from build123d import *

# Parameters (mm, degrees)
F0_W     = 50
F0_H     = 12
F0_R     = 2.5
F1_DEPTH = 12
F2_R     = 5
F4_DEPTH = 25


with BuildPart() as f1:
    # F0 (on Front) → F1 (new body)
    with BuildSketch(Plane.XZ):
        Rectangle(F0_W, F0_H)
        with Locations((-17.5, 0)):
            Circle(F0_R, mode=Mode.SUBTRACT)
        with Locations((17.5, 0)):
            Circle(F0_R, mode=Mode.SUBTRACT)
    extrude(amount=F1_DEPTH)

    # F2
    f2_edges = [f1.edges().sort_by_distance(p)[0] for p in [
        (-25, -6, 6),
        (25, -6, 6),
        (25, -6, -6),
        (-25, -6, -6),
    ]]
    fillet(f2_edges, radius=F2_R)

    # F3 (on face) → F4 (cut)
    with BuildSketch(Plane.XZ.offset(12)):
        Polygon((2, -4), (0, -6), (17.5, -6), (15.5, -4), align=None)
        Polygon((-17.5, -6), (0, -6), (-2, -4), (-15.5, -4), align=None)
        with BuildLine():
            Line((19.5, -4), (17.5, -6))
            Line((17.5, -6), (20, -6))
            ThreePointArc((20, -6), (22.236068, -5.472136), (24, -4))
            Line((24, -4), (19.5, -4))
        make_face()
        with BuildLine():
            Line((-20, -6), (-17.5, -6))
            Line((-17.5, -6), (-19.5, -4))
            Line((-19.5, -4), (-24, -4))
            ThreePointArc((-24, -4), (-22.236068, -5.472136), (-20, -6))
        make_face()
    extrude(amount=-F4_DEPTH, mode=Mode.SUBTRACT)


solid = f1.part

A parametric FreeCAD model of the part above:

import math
import FreeCAD as App
import Part
import Sketcher
from FreeCAD import Vector
Q = App.Units.Quantity


def edges_at(feature, points):
    """Names of the edges that pass closest to the given points."""
    edges = feature.Shape.Edges
    near = lambda p: min(range(len(edges)), key=lambda i: edges[i].distToShape(Part.Vertex(*p))[0])
    return sorted({f"Edge{near(p) + 1}" for p in points})

doc = App.newDocument("Part")
params = doc.addObject("Spreadsheet::Sheet", "Params")
for row, (alias, value) in enumerate([
    ("sketch1_diameter", "5 mm"),
    ("sketch1_width", "50 mm"),
    ("sketch1_height", "12 mm"),
    ("pad1_length", "12 mm"),
    ("fillet_radius", "5 mm"),
    ("sketch2_radius", "5 mm"),
    ("sketch2_width", "17.5 mm"),
    ("sketch2_width2", "13.5 mm"),
    ("sketch2_width3", "2.5 mm"),
    ("pocket1_length", "25 mm"),
], start=1):
    params.set(f"A{row}", alias)
    params.set(f"B{row}", "=" + value)
    params.setAlias(f"B{row}", alias)

body = doc.addObject("PartDesign::Body", "Body")

# Sketch on XZ plane
sketch1 = body.newObject("Sketcher::SketchObject", "Sketch")
sketch1.AttachmentSupport = (doc.getObject("XZ_Plane"), [""])
sketch1.MapMode = "FlatFace"
sketch1.addGeometry([
    Part.LineSegment(Vector(-25, 6, 0), Vector(-25, -6, 0)),  # 0
    Part.LineSegment(Vector(-25, -6, 0), Vector(25, -6, 0)),  # 1
    Part.LineSegment(Vector(25, -6, 0), Vector(25, 6, 0)),  # 2
    Part.LineSegment(Vector(25, 6, 0), Vector(-25, 6, 0)),  # 3
    Part.Circle(Vector(-17.5, 0, 0), Vector(0, 0, 1), 2.5),  # 4
    Part.Circle(Vector(17.5, 0, 0), Vector(0, 0, 1), 2.5),  # 5
], False)
sketch1.addConstraint([
    Sketcher.Constraint("Coincident", 0, 2, 1, 1),
    Sketcher.Constraint("Coincident", 1, 2, 2, 1),
    Sketcher.Constraint("Coincident", 2, 2, 3, 1),
    Sketcher.Constraint("Coincident", 3, 2, 0, 1),
    Sketcher.Constraint("Vertical", 0),
    Sketcher.Constraint("Horizontal", 1),
    Sketcher.Constraint("Vertical", 2),
    Sketcher.Constraint("Horizontal", 3),
    Sketcher.Constraint("Equal", 4, 5),
    Sketcher.Constraint("Symmetric", 4, 3, 5, 3, -1, 1),
    Sketcher.Constraint("Symmetric", 0, 2, 2, 2, -1, 1),
    Sketcher.Constraint("PointOnObject", 4, 3, -1),
    Sketcher.Constraint("Diameter", 4, Q("5 mm")),
    Sketcher.Constraint("DistanceX", 1, 1, 1, 2, Q("50 mm")),
    Sketcher.Constraint("DistanceY", 0, 2, 0, 1, Q("12 mm")),
    Sketcher.Constraint("DistanceX", 4, 3, 5, 3, Q("35 mm")),
])
sketch1.setExpression("Constraints[12]", "Params.sketch1_diameter")
sketch1.setExpression("Constraints[13]", "Params.sketch1_width")
sketch1.setExpression("Constraints[14]", "Params.sketch1_height")
pad1 = body.newObject("PartDesign::Pad", "Pad")
pad1.Profile = sketch1
pad1.setExpression("Length", "Params.pad1_length")
doc.recompute()

fillet = body.newObject("PartDesign::Fillet", "Fillet")
fillet.Base = (pad1, edges_at(pad1, [
    (-25, -6, 6),
    (25, -6, 6),
    (25, -6, -6),
    (-25, -6, -6),
]))
fillet.setExpression("Radius", "Params.fillet_radius")

# Sketch on XZ plane
sketch2 = body.newObject("Sketcher::SketchObject", "Sketch001")
sketch2.AttachmentSupport = (doc.getObject("XZ_Plane"), [""])
sketch2.MapMode = "FlatFace"
sketch2.AttachmentOffset = App.Placement(Vector(0, 0, 12), App.Rotation())
sketch2.addGeometry([
    Part.LineSegment(Vector(2, -4, 0), Vector(0, -6, 0)),  # 0
    Part.LineSegment(Vector(0, -6, 0), Vector(17.5, -6, 0)),  # 1
    Part.LineSegment(Vector(17.5, -6, 0), Vector(15.5, -4, 0)),  # 2
    Part.LineSegment(Vector(15.5, -4, 0), Vector(2, -4, 0)),  # 3
    Part.LineSegment(Vector(-17.5, -6, 0), Vector(0, -6, 0)),  # 4
    Part.LineSegment(Vector(0, -6, 0), Vector(-2, -4, 0)),  # 5
    Part.LineSegment(Vector(-2, -4, 0), Vector(-15.5, -4, 0)),  # 6
    Part.LineSegment(Vector(-15.5, -4, 0), Vector(-17.5, -6, 0)),  # 7
    Part.LineSegment(Vector(19.5, -4, 0), Vector(17.5, -6, 0)),  # 8
    Part.LineSegment(Vector(17.5, -6, 0), Vector(20, -6, 0)),  # 9
    Part.ArcOfCircle(Part.Circle(Vector(20, -1, 0), Vector(0, 0, 1), 5), math.radians(-90), math.radians(-37)),  # 10
    Part.LineSegment(Vector(24, -4, 0), Vector(19.5, -4, 0)),  # 11
    Part.LineSegment(Vector(-20, -6, 0), Vector(-17.5, -6, 0)),  # 12
    Part.LineSegment(Vector(-17.5, -6, 0), Vector(-19.5, -4, 0)),  # 13
    Part.LineSegment(Vector(-19.5, -4, 0), Vector(-24, -4, 0)),  # 14
    Part.ArcOfCircle(Part.Circle(Vector(-20, -1, 0), Vector(0, 0, 1), 5), math.radians(-143), math.radians(-90)),  # 15
], False)
sketch2.addConstraint([
    Sketcher.Constraint("Coincident", 0, 2, 1, 1),
    Sketcher.Constraint("Coincident", 1, 2, 2, 1),
    Sketcher.Constraint("Coincident", 2, 2, 3, 1),
    Sketcher.Constraint("Coincident", 3, 2, 0, 1),
    Sketcher.Constraint("Coincident", 4, 2, 5, 1),
    Sketcher.Constraint("Coincident", 5, 2, 6, 1),
    Sketcher.Constraint("Coincident", 6, 2, 7, 1),
    Sketcher.Constraint("Coincident", 7, 2, 4, 1),
    Sketcher.Constraint("Coincident", 8, 2, 9, 1),
    Sketcher.Constraint("Tangent", 9, 2, 10, 1),
    Sketcher.Constraint("Coincident", 10, 2, 11, 1),
    Sketcher.Constraint("Coincident", 11, 2, 8, 1),
    Sketcher.Constraint("Coincident", 12, 2, 13, 1),
    Sketcher.Constraint("Coincident", 13, 2, 14, 1),
    Sketcher.Constraint("Coincident", 14, 2, 15, 1),
    Sketcher.Constraint("Tangent", 15, 2, 12, 1),
    Sketcher.Constraint("Horizontal", 1),
    Sketcher.Constraint("Horizontal", 3),
    Sketcher.Constraint("Horizontal", 4),
    Sketcher.Constraint("Horizontal", 6),
    Sketcher.Constraint("Horizontal", 9),
    Sketcher.Constraint("Horizontal", 11),
    Sketcher.Constraint("Horizontal", 12),
    Sketcher.Constraint("Horizontal", 14),
    Sketcher.Constraint("Coincident", 4, 2, 0, 2),
    Sketcher.Constraint("Coincident", 8, 2, 1, 2),
    Sketcher.Constraint("Coincident", 12, 2, 7, 2),
    Sketcher.Constraint("Equal", 10, 15),
    Sketcher.Constraint("Symmetric", 3, 2, 5, 2, -2),
    Sketcher.Constraint("Symmetric", 11, 2, 13, 2, -2),
    Sketcher.Constraint("PointOnObject", 0, 2, -2),
    Sketcher.Constraint("Perpendicular", 0, 2),
    Sketcher.Constraint("Parallel", 2, 5),
    Sketcher.Constraint("Perpendicular", 5, 7),
    Sketcher.Constraint("Parallel", 7, 8),
    Sketcher.Constraint("Perpendicular", 8, 13),
    Sketcher.Constraint("Horizontal", 6, 2, 10, 2),
    Sketcher.Constraint("Equal", 9, 12),
    Sketcher.Constraint("Radius", 10, Q("5 mm")),
    Sketcher.Constraint("DistanceX", 1, 1, 1, 2, Q("17.5 mm")),
    Sketcher.Constraint("DistanceX", 3, 2, 3, 1, Q("13.5 mm")),
    Sketcher.Constraint("DistanceX", 9, 1, 9, 2, Q("2.5 mm")),
    Sketcher.Constraint("DistanceY", 10, 3, -1, 1, Q("1 mm")),
])
sketch2.setExpression("Constraints[38]", "Params.sketch2_radius")
sketch2.setExpression("Constraints[39]", "Params.sketch2_width")
sketch2.setExpression("Constraints[40]", "Params.sketch2_width2")
sketch2.setExpression("Constraints[41]", "Params.sketch2_width3")
pocket1 = body.newObject("PartDesign::Pocket", "Pocket")
pocket1.Profile = sketch2
pocket1.setExpression("Length", "Params.pocket1_length")

doc.recompute()
